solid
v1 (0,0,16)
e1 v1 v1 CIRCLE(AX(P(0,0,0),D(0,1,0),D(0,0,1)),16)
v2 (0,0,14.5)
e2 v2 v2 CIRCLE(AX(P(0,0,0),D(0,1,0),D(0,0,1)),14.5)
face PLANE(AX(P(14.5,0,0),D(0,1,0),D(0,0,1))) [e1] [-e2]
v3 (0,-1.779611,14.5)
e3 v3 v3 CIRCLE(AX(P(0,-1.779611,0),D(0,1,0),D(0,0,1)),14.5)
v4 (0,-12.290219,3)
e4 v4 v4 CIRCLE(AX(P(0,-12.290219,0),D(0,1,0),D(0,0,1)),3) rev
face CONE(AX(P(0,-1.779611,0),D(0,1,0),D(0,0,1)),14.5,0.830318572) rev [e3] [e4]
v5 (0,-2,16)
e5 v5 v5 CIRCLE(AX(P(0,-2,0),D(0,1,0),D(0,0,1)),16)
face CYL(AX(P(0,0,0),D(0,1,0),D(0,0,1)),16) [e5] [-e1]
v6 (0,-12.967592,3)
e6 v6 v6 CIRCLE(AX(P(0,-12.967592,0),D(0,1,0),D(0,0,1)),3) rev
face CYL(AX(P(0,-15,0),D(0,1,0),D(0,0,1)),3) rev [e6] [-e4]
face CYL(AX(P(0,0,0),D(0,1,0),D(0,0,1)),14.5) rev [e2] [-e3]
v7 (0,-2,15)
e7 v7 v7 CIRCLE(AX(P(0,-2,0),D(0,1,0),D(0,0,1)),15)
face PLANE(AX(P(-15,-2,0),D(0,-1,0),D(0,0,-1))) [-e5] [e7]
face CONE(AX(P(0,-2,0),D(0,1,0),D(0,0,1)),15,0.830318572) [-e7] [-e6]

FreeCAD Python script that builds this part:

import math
import FreeCAD as App
import Part
import Sketcher


def add_polygon(sketch, points):
    """Adds a closed chain of lines whose ends are joined by coincident constraints."""
    first, n = sketch.GeometryCount, len(points)
    for a, b in zip(points, points[1:] + points[:1]):
        sketch.addGeometry(Part.LineSegment(App.Vector(*a, 0), App.Vector(*b, 0)), False)
    for i in range(n):
        sketch.addConstraint(Sketcher.Constraint("Coincident", first + i, 2, first + (i + 1) % n, 1))

doc = App.newDocument("Part")
body = doc.addObject("PartDesign::Body", "Body")

sketch1 = body.newObject("Sketcher::SketchObject", "Sketch")
sketch1.AttachmentSupport = (doc.getObject("XY_Plane"), [""])
sketch1.MapMode = "FlatFace"
sketch1.addGeometry([
    Part.LineSegment(App.Vector(15, -2, 0), App.Vector(15, 0, 0)),
    Part.LineSegment(App.Vector(15, 0, 0), App.Vector(14.5, 0, 0)),
    Part.LineSegment(App.Vector(14.5, 0, 0), App.Vector(14.5, -1.8, 0)),
    Part.LineSegment(App.Vector(14.5, -1.8, 0), App.Vector(1, -14.1, 0)),
    Part.ArcOfCircle(Part.Circle(App.Vector(0, -13, 0), App.Vector(0, 0, 1), 1.5), math.radians(-90), math.radians(-48)),
    Part.LineSegment(App.Vector(0, -14.5, 0), App.Vector(0, -15, 0)),
    Part.ArcOfCircle(Part.Circle(App.Vector(0, -13, 0), App.Vector(0, 0, 1), 2), math.radians(-90), math.radians(-48)),
    Part.LineSegment(App.Vector(1.3, -14.5, 0), App.Vector(15, -2, 0)),
], False)
sketch1.addConstraint([
    Sketcher.Constraint("Coincident", 0, 2, 1, 1),
    Sketcher.Constraint("Coincident", 1, 2, 2, 1),
    Sketcher.Constraint("Coincident", 2, 2, 3, 1),
    Sketcher.Constraint("Tangent", 3, 2, 4, 2),
    Sketcher.Constraint("Coincident", 4, 1, 5, 1),
    Sketcher.Constraint("Coincident", 5, 2, 6, 1),
    Sketcher.Constraint("Tangent", 6, 2, 7, 1),
    Sketcher.Constraint("Coincident", 7, 2, 0, 1),
    Sketcher.Constraint("Vertical", 0),
    Sketcher.Constraint("Horizontal", 1),
    Sketcher.Constraint("Vertical", 2),
    Sketcher.Constraint("Vertical", 5),
    Sketcher.Constraint("Coincident", 6, 3, 4, 3),
    Sketcher.Constraint("PointOnObject", 4, 3, -2),
    Sketcher.Constraint("PointOnObject", 0, 2, -1),
    Sketcher.Constraint("PointOnObject", 4, 1, -2),
    Sketcher.Constraint("Parallel", 3, 7),
    Sketcher.Constraint("Equal", 1, 5),
    Sketcher.Constraint("Radius", 6, 2.0),
    Sketcher.Constraint("Radius", 4, 1.5),
    Sketcher.Constraint("DistanceY", 0, 1, 0, 2, 2.0),
    Sketcher.Constraint("DistanceY", 4, 3, -1, 1, 13.0),
    Sketcher.Constraint("DistanceX", -1, 1, 0, 2, 15.0),
])
revolution = body.newObject("PartDesign::Revolution", "Revolution")
revolution.Profile = sketch1
revolution.ReferenceAxis = (sketch1, ["V_Axis"])
revolution.Angle = 360

sketch2 = body.newObject("Sketcher::SketchObject", "Sketch001")
sketch2.AttachmentSupport = (doc.getObject("XY_Plane"), [""])
sketch2.MapMode = "FlatFace"
add_polygon(sketch2, [(-16, 0), (-16, -2), (-15, -2), (-15, 0)])
sketch2.addConstraint([
    Sketcher.Constraint("Vertical", 0),
    Sketcher.Constraint("Horizontal", 1),
    Sketcher.Constraint("Vertical", 2),
    Sketcher.Constraint("Horizontal", 3),
    Sketcher.Constraint("PointOnObject", 2, 2, -1),
    Sketcher.Constraint("DistanceX", 1, 1, 1, 2, 1.0),
    Sketcher.Constraint("DistanceY", 0, 2, 0, 1, 2.0),
    Sketcher.Constraint("DistanceX", 0, 2, -1, 1, 16.0),
])
revolution2 = body.newObject("PartDesign::Revolution", "Revolution001")
revolution2.Profile = sketch2
revolution2.ReferenceAxis = (sketch2, ["V_Axis"])
revolution2.Angle = 360

sketch3 = body.newObject("Sketcher::SketchObject", "Sketch002")
sketch3.AttachmentSupport = (doc.getObject("XZ_Plane"), [""])
sketch3.MapMode = "FlatFace"
sketch3.addGeometry(Part.Circle(App.Vector(0, 0, 0), App.Vector(0, 0, 1), 3), False)
sketch3.addConstraint([
    Sketcher.Constraint("Coincident", 0, 3, -1, 1),
    Sketcher.Constraint("Diameter", 0, 6.0),
])
pocket1 = body.newObject("PartDesign::Pocket", "Pocket")
pocket1.Profile = sketch3
pocket1.Type = "ThroughAll"
pocket1.Reversed = True

doc.recompute()
